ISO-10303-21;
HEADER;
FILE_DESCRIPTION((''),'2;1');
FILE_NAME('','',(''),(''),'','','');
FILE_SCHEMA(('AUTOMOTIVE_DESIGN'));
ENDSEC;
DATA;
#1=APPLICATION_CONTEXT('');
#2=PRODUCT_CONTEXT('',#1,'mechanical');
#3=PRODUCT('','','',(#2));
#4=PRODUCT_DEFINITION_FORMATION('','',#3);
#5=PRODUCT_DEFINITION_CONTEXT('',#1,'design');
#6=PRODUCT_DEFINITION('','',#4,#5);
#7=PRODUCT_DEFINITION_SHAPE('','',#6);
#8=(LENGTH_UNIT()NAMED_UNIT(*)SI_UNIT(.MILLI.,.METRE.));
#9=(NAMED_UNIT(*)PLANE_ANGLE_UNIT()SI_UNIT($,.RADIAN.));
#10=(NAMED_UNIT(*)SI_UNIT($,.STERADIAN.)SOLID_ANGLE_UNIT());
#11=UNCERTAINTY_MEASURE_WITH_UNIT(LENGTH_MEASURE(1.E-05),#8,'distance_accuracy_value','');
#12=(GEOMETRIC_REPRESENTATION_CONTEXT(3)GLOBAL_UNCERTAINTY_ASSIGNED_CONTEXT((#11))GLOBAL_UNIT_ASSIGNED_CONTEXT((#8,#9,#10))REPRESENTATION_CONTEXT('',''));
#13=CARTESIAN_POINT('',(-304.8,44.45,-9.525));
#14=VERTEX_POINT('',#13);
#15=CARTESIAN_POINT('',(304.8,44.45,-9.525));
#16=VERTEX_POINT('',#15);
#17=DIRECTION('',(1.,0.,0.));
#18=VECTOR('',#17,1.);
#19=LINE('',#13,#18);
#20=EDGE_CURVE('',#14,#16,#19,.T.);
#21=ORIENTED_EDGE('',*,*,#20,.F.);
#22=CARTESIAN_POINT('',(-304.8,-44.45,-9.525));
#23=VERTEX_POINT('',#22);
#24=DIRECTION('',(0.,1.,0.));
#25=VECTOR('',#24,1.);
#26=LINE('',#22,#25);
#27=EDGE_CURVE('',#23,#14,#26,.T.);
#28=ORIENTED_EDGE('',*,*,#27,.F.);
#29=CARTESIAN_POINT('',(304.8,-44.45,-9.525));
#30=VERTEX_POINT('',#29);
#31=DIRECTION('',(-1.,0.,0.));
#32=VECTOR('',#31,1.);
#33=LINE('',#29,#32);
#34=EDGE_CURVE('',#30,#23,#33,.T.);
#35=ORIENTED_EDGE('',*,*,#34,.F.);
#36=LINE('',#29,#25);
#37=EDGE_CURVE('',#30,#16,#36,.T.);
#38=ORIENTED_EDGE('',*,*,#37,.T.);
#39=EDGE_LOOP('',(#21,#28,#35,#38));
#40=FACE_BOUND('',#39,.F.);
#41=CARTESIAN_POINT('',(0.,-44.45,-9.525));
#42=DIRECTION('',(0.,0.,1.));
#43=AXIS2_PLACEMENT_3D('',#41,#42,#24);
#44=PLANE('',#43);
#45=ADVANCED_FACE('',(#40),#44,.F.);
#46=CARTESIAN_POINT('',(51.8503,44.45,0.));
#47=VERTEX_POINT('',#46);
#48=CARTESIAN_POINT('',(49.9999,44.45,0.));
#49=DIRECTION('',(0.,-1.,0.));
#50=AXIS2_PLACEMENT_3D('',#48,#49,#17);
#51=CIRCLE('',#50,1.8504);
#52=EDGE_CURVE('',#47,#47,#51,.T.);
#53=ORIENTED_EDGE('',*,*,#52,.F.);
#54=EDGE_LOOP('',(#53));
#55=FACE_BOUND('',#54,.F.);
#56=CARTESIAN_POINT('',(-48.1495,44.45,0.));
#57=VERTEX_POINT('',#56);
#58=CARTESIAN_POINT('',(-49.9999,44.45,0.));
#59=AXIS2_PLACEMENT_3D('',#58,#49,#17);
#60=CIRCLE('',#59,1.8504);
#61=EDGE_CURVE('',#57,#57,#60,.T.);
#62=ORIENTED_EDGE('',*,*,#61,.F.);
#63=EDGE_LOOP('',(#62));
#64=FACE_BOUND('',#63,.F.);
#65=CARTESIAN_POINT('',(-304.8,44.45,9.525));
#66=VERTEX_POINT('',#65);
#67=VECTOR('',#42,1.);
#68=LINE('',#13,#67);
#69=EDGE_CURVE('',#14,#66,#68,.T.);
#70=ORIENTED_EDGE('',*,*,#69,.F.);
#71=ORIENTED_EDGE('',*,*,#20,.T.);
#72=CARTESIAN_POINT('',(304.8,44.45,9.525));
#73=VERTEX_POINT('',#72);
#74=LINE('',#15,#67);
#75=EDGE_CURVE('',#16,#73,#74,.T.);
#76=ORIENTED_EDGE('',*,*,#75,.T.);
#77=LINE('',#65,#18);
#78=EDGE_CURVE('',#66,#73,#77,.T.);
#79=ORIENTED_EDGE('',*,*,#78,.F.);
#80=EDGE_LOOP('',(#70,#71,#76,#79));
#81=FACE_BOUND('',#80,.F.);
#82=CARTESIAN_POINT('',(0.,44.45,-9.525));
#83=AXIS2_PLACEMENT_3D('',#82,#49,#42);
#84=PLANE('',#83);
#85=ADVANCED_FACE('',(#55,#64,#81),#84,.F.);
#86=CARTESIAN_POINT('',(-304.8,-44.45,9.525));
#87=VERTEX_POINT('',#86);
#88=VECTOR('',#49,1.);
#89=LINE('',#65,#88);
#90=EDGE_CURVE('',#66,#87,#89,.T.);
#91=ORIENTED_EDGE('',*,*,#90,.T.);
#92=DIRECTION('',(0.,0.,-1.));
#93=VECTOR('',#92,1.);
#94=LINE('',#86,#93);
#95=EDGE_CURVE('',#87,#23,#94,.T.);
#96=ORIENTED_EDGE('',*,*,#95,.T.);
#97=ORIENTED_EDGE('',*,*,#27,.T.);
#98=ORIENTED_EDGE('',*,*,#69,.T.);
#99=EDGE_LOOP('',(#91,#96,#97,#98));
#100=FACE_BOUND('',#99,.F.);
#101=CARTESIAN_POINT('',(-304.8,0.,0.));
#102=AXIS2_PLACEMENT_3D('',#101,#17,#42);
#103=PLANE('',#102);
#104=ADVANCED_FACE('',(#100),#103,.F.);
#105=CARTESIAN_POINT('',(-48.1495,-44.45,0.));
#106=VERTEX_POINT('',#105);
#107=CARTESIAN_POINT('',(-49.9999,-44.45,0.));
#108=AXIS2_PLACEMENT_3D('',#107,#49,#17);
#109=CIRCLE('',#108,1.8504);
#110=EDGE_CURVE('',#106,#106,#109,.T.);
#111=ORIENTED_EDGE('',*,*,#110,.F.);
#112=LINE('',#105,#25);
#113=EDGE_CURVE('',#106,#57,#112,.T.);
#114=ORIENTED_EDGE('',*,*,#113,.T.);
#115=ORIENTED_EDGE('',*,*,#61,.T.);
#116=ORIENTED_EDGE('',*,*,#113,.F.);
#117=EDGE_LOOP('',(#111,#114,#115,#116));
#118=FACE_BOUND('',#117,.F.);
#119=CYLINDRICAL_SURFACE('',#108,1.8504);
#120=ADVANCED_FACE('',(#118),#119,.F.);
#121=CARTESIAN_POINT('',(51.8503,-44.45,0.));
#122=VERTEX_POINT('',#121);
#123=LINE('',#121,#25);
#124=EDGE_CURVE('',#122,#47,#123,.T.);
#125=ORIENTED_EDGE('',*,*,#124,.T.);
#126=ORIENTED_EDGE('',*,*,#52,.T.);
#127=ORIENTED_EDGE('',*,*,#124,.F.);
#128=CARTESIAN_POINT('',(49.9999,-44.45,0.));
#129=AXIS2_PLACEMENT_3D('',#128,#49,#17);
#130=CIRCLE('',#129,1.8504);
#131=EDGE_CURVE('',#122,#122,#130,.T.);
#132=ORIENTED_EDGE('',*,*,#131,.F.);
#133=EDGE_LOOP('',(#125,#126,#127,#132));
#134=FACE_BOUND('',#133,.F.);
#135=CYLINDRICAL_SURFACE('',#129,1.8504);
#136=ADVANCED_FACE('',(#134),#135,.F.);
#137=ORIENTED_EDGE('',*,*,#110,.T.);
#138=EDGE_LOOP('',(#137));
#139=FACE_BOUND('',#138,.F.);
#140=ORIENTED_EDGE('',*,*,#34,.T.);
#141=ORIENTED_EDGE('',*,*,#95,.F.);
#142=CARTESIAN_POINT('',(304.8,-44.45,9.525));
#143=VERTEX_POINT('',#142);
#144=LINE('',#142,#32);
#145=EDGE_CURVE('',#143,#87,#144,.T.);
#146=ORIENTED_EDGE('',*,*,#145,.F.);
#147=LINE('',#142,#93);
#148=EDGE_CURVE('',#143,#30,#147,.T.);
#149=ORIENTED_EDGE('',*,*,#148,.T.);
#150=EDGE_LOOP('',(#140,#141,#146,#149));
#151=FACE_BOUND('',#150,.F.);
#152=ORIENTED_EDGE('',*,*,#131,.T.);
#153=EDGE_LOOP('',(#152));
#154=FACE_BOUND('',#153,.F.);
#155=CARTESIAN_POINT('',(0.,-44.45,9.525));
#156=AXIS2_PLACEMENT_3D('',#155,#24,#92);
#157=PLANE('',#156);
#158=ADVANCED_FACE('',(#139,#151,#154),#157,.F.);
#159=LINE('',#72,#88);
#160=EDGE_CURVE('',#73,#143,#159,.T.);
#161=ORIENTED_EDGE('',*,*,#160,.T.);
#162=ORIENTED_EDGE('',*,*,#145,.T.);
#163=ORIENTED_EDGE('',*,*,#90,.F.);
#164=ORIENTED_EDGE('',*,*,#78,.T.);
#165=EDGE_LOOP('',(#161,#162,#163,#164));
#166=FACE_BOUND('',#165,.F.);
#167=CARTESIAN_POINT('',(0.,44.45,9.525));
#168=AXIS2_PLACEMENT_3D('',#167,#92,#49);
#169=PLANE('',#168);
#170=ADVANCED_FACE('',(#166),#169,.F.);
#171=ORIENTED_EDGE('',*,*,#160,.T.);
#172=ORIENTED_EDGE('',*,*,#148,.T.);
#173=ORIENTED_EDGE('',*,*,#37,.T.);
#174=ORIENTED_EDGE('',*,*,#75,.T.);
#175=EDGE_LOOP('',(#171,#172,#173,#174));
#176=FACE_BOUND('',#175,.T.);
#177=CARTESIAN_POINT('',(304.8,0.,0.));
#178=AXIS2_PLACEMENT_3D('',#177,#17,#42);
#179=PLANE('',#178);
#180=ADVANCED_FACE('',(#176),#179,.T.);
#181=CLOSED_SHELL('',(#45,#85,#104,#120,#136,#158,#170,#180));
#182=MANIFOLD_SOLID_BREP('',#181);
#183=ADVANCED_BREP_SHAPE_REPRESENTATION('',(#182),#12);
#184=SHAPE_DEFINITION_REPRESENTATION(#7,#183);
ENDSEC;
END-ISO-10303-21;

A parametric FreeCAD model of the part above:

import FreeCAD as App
import Part
import Sketcher
from FreeCAD import Vector
Q = App.Units.Quantity


def add_polygon(sketch, points):
    """Adds a closed chain of lines whose ends are joined by coincident constraints."""
    first, n = sketch.GeometryCount, len(points)
    for a, b in zip(points, points[1:] + points[:1]):
        sketch.addGeometry(Part.LineSegment(App.Vector(*a, 0), App.Vector(*b, 0)), False)
    for i in range(n):
        sketch.addConstraint(Sketcher.Constraint("Coincident", first + i, 2, first + (i + 1) % n, 1))

doc = App.newDocument("Part")
params = doc.addObject("Spreadsheet::Sheet", "Params")
for row, (alias, value) in enumerate([
    ("sketch1_height", "0.75 in"),
    ("pad1_length", "24 in"),
], start=1):
    params.set(f"A{row}", alias)
    params.set(f"B{row}", "=" + value)
    params.setAlias(f"B{row}", alias)

body = doc.addObject("PartDesign::Body", "Body")

# Sketch on YZ plane
sketch1 = body.newObject("Sketcher::SketchObject", "Sketch")
sketch1.AttachmentSupport = (doc.getObject("YZ_Plane"), [""])
sketch1.MapMode = "FlatFace"
add_polygon(sketch1, [(-44, 10), (-44, -10), (44, -10), (44, 10)])  # lines 0-3
sketch1.addConstraint(Sketcher.Constraint("Vertical", 0))
sketch1.addConstraint(Sketcher.Constraint("Horizontal", 1))
sketch1.addConstraint(Sketcher.Constraint("Vertical", 2))
sketch1.addConstraint(Sketcher.Constraint("Horizontal", 3))
sketch1.addConstraint(Sketcher.Constraint("Symmetric", 0, 2, 2, 2, -1, 1))
sketch1.addConstraint(Sketcher.Constraint("DistanceX", 0, 2, -1, 1, Q("1.75 in")))
sketch1.addConstraint(Sketcher.Constraint("DistanceY", 0, 2, 0, 1, Q("0.75 in")))
sketch1.setExpression("Constraints[10]", "Params.sketch1_height")
pad1 = body.newObject("PartDesign::Pad", "Pad")
pad1.Profile = sketch1
pad1.setExpression("Length", "Params.pad1_length")
pad1.Midplane = True

# Sketch on XZ plane
sketch2 = body.newObject("Sketcher::SketchObject", "Sketch001")
sketch2.AttachmentSupport = (doc.getObject("XZ_Plane"), [""])
sketch2.MapMode = "FlatFace"
sketch2.AttachmentOffset = App.Placement(Vector(0, 0, 1.75 * 25.4), App.Rotation())
sketch2.addGeometry(Part.Circle(Vector(-50, 0, 0), Vector(0, 0, 1), 1.9), False)
sketch2.addGeometry(Part.Circle(Vector(50, 0, 0), Vector(0, 0, 1), 1.9), False)
sketch2.addConstraint(Sketcher.Constraint("Equal", 0, 1))
sketch2.addConstraint(Sketcher.Constraint("Symmetric", 0, 3, 1, 3, -1, 1))
sketch2.addConstraint(Sketcher.Constraint("PointOnObject", 0, 3, -1))
sketch2.addConstraint(Sketcher.Constraint("Diameter", 0, Q("0.1457 in")))
sketch2.addConstraint(Sketcher.Constraint("DistanceX", 0, 3, 1, 3, Q("3.937 in")))
pocket1 = body.newObject("PartDesign::Pocket", "Pocket")
pocket1.Profile = sketch2
pocket1.Type = "ThroughAll"

doc.recompute()
